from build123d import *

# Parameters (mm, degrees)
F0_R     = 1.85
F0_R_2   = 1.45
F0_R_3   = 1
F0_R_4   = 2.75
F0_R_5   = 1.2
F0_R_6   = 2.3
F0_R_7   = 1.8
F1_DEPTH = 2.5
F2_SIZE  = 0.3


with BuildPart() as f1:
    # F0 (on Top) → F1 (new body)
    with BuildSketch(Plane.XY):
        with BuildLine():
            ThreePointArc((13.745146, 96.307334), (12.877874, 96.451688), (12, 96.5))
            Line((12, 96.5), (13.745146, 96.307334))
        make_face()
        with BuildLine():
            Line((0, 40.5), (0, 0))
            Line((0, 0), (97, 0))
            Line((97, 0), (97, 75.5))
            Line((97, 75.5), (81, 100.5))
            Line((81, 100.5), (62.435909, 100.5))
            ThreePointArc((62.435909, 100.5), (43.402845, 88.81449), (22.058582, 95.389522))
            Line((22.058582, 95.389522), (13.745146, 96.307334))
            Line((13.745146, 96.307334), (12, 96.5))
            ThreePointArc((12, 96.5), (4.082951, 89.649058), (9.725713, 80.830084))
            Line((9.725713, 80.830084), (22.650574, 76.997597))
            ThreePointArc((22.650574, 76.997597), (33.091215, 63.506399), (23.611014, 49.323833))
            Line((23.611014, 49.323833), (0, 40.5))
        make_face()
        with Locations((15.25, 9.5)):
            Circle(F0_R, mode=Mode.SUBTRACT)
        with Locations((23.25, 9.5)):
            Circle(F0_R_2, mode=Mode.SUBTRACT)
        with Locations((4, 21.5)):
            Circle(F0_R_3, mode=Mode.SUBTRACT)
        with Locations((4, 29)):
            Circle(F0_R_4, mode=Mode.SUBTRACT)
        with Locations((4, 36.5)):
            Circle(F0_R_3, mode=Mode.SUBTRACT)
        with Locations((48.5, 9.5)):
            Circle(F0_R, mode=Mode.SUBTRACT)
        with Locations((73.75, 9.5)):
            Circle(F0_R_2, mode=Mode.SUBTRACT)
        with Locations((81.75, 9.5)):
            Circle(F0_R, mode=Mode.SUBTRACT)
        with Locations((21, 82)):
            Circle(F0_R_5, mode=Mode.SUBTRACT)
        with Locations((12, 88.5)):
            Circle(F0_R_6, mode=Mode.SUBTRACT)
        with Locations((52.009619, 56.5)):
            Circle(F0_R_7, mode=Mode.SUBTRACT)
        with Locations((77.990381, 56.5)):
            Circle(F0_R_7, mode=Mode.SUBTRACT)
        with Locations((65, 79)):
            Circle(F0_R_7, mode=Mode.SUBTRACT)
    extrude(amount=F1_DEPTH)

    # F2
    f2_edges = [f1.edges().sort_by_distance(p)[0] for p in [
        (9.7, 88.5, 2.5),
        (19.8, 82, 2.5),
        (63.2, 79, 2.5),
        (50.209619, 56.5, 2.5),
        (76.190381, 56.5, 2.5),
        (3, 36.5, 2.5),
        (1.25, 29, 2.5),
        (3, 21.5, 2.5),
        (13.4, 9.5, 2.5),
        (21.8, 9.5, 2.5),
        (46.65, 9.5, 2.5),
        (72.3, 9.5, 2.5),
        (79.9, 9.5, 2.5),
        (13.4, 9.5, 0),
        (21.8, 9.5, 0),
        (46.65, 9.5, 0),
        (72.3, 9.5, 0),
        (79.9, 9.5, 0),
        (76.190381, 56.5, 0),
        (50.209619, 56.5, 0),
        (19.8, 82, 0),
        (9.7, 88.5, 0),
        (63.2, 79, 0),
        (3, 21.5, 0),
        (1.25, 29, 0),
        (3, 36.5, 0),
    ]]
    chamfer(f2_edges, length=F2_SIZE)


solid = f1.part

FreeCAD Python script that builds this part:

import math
import FreeCAD as App
import Part
import Sketcher

V = App.Vector
Q = App.Units.Quantity


def edges_at(feature, points):
    """Names of the edges that pass closest to the given points."""
    edges = feature.Shape.Edges
    near = lambda p: min(range(len(edges)), key=lambda i: edges[i].distToShape(Part.Vertex(*p))[0])
    return sorted({f"Edge{near(p) + 1}" for p in points})

doc = App.newDocument("Part")
body = doc.addObject("PartDesign::Body", "Body")

sketch1 = doc.addObject("Sketcher::SketchObject", "Sketch")
body.addObject(sketch1)
sketch1.AttachmentSupport = (doc.XY_Plane, [""])
sketch1.MapMode = "FlatFace"
sketch1.addGeometry(Part.ArcOfCircle(Part.Circle(V(12, 88.5, 0), V(0, 0, 1), 8), math.radians(77.4), math.radians(90)), False)
sketch1.addGeometry(Part.ArcOfCircle(Part.Circle(V(12, 88.5, 0), V(0, 0, 1), 8), math.radians(90), math.radians(253)), False)
sketch1.addGeometry(Part.LineSegment(V(9.7, 80.8, 0), V(22.7, 77, 0)), False)
sketch1.addGeometry(Part.ArcOfCircle(Part.Circle(V(18.5, 63, 0), V(0, 0, 1), 14.6), math.radians(-70), math.radians(73)), False)
sketch1.addGeometry(Part.LineSegment(V(23.6, 49.3, 0), V(0, 40.5, 0)), False)
sketch1.addGeometry(Part.LineSegment(V(0, 40.5, 0), V(0, 0, 0)), False)
sketch1.addGeometry(Part.LineSegment(V(0, 0, 0), V(97, 0, 0)), False)
sketch1.addGeometry(Part.LineSegment(V(97, 0, 0), V(97, 75.5, 0)), False)
sketch1.addGeometry(Part.LineSegment(V(97, 75.5, 0), V(81, 100.5, 0)), False)
sketch1.addGeometry(Part.LineSegment(V(81, 100.5, 0), V(62.4, 100.5, 0)), False)
sketch1.addGeometry(Part.ArcOfCircle(Part.Circle(V(40, 115.7, 0), V(0, 0, 1), 27.1), math.radians(-131), math.radians(-34)), False)
sketch1.addGeometry(Part.LineSegment(V(22.1, 95.4, 0), V(13.7, 96.3, 0)), False)
sketch1.addGeometry(Part.Circle(V(15.2, 9.5, 0), V(0, 0, 1), 1.9), False)
sketch1.addGeometry(Part.Circle(V(4, 21.5, 0), V(0, 0, 1), 1), False)
sketch1.addGeometry(Part.Circle(V(23.2, 9.5, 0), V(0, 0, 1), 1.4), False)
sketch1.addGeometry(Part.Circle(V(4, 29, 0), V(0, 0, 1), 2.8), False)
sketch1.addGeometry(Part.Circle(V(4, 36.5, 0), V(0, 0, 1), 1), False)
sketch1.addGeometry(Part.Circle(V(48.5, 9.5, 0), V(0, 0, 1), 1.9), False)
sketch1.addGeometry(Part.Circle(V(73.8, 9.5, 0), V(0, 0, 1), 1.4), False)
sketch1.addGeometry(Part.Circle(V(81.8, 9.5, 0), V(0, 0, 1), 1.9), False)
sketch1.addGeometry(Part.Circle(V(21, 82, 0), V(0, 0, 1), 1.2), False)
sketch1.addGeometry(Part.Circle(V(12, 88.5, 0), V(0, 0, 1), 2.3), False)
sketch1.addGeometry(Part.Circle(V(52, 56.5, 0), V(0, 0, 1), 1.8), False)
sketch1.addGeometry(Part.Circle(V(78, 56.5, 0), V(0, 0, 1), 1.8), False)
sketch1.addGeometry(Part.Circle(V(65, 79, 0), V(0, 0, 1), 1.8), False)
sketch1.addConstraint(Sketcher.Constraint("Tangent", 0, 2, 1, 1))
sketch1.addConstraint(Sketcher.Constraint("Tangent", 1, 2, 2, 1))
sketch1.addConstraint(Sketcher.Constraint("Tangent", 2, 2, 3, 2))
sketch1.addConstraint(Sketcher.Constraint("Tangent", 3, 1, 4, 1))
sketch1.addConstraint(Sketcher.Constraint("Coincident", 4, 2, 5, 1))
sketch1.addConstraint(Sketcher.Constraint("Coincident", 5, 2, 6, 1))
sketch1.addConstraint(Sketcher.Constraint("Coincident", 6, 2, 7, 1))
sketch1.addConstraint(Sketcher.Constraint("Coincident", 7, 2, 8, 1))
sketch1.addConstraint(Sketcher.Constraint("Coincident", 8, 2, 9, 1))
sketch1.addConstraint(Sketcher.Constraint("Coincident", 9, 2, 10, 2))
sketch1.addConstraint(Sketcher.Constraint("Coincident", 10, 1, 11, 1))
sketch1.addConstraint(Sketcher.Constraint("Coincident", 11, 2, 0, 1))
sketch1.addConstraint(Sketcher.Constraint("Vertical", 5))
sketch1.addConstraint(Sketcher.Constraint("Horizontal", 6))
sketch1.addConstraint(Sketcher.Constraint("Vertical", 7))
sketch1.addConstraint(Sketcher.Constraint("Horizontal", 9))
sketch1.addConstraint(Sketcher.Constraint("Coincident", 5, 2, -1, 1))
sketch1.addConstraint(Sketcher.Constraint("Coincident", 21, 3, 1, 3))
sketch1.addConstraint(Sketcher.Constraint("Equal", 13, 16))
sketch1.addConstraint(Sketcher.Constraint("Equal", 12, 17))
sketch1.addConstraint(Sketcher.Constraint("Equal", 14, 18))
sketch1.addConstraint(Sketcher.Constraint("Equal", 17, 19))
sketch1.addConstraint(Sketcher.Constraint("Equal", 22, 23))
sketch1.addConstraint(Sketcher.Constraint("Equal", 23, 24))
sketch1.addConstraint(Sketcher.Constraint("Horizontal", 12, 3, 14, 3))
sketch1.addConstraint(Sketcher.Constraint("Horizontal", 14, 3, 17, 3))
sketch1.addConstraint(Sketcher.Constraint("Horizontal", 17, 3, 18, 3))
sketch1.addConstraint(Sketcher.Constraint("Horizontal", 18, 3, 19, 3))
sketch1.addConstraint(Sketcher.Constraint("Horizontal", 22, 3, 23, 3))
sketch1.addConstraint(Sketcher.Constraint("Vertical", 13, 3, 15, 3))
sketch1.addConstraint(Sketcher.Constraint("Vertical", 15, 3, 16, 3))
sketch1.addConstraint(Sketcher.Constraint("Vertical", 21, 3, 0, 2))
sketch1.addConstraint(Sketcher.Constraint("Diameter", 13, Q("2 mm")))
sketch1.addConstraint(Sketcher.Constraint("Radius", 1, Q("8 mm")))
sketch1.addConstraint(Sketcher.Constraint("Diameter", 12, Q("3.7 mm")))
sketch1.addConstraint(Sketcher.Constraint("Diameter", 14, Q("2.9 mm")))
sketch1.addConstraint(Sketcher.Constraint("Diameter", 15, Q("5.5 mm")))
sketch1.addConstraint(Sketcher.Constraint("Diameter", 20, Q("2.4 mm")))
sketch1.addConstraint(Sketcher.Constraint("Diameter", 21, Q("4.6 mm")))
sketch1.addConstraint(Sketcher.Constraint("Diameter", 22, Q("3.6 mm")))
sketch1.addConstraint(Sketcher.Constraint("Radius", 3, Q("14.6 mm")))
sketch1.addConstraint(Sketcher.Constraint("Radius", 10, Q("27.1 mm")))
sketch1.addConstraint(Sketcher.Constraint("DistanceX", 6, 1, 6, 2, Q("97 mm")))
sketch1.addConstraint(Sketcher.Constraint("DistanceY", 5, 2, 5, 1, Q("40.5 mm")))
sketch1.addConstraint(Sketcher.Constraint("DistanceY", 7, 1, 7, 2, Q("75.5 mm")))
sketch1.addConstraint(Sketcher.Constraint("DistanceX", -1, 1, 1, 3, Q("12 mm")))
sketch1.addConstraint(Sketcher.Constraint("DistanceY", -1, 1, 3, 3, Q("63 mm")))
sketch1.addConstraint(Sketcher.Constraint("DistanceX", -1, 1, 10, 3, Q("40 mm")))
sketch1.addConstraint(Sketcher.Constraint("DistanceX", -1, 1, 13, 3, Q("4 mm")))
sketch1.addConstraint(Sketcher.Constraint("DistanceY", -1, 1, 15, 3, Q("29 mm")))
sketch1.addConstraint(Sketcher.Constraint("DistanceX", -1, 1, 20, 3, Q("21 mm")))
sketch1.addConstraint(Sketcher.Constraint("DistanceY", -1, 1, 20, 3, Q("82 mm")))
sketch1.addConstraint(Sketcher.Constraint("DistanceX", -1, 1, 24, 3, Q("65 mm")))
sketch1.addConstraint(Sketcher.Constraint("DistanceY", -1, 1, 24, 3, Q("79 mm")))
sketch1.addConstraint(Sketcher.Constraint("DistanceX", -1, 1, 8, 2, Q("81 mm")))
sketch1.addConstraint(Sketcher.Constraint("Angle", 11, Q("173.699999 deg")))
sketch1.addConstraint(Sketcher.Constraint("DistanceY", 12, 3, 1, 3, Q("79 mm")))
sketch1.addConstraint(Sketcher.Constraint("DistanceY", 12, 3, 13, 3, Q("12 mm")))
sketch1.addConstraint(Sketcher.Constraint("DistanceX", 12, 3, 14, 3, Q("8 mm")))
sketch1.addConstraint(Sketcher.Constraint("DistanceY", 13, 3, 16, 3, Q("15 mm")))
sketch1.addConstraint(Sketcher.Constraint("DistanceX", 18, 3, 19, 3, Q("8 mm")))
sketch1.addConstraint(Sketcher.Constraint("DistanceY", 17, 3, 22, 3, Q("47 mm")))
sketch1.addConstraint(Sketcher.Constraint("DistanceY", 16, 3, 4, 2, Q("4 mm")))
sketch1.addConstraint(Sketcher.Constraint("DistanceY", 7, 2, 8, 2, Q("25 mm")))
sketch1.addConstraint(Sketcher.Constraint("DistanceX", -1, 1, 3, 3, Q("18.5 mm")))
sketch1.addConstraint(Sketcher.Constraint("DistanceY", -1, 1, 10, 3, Q("115.7 mm")))
sketch1.addConstraint(Sketcher.Constraint("DistanceX", -1, 1, 17, 3, Q("48.5 mm")))
sketch1.addConstraint(Sketcher.Constraint("DistanceX", 14, 3, 18, 3, Q("50.5 mm")))
sketch1.addConstraint(Sketcher.Constraint("DistanceX", -1, 1, 12, 3, Q("15.25 mm")))
sketch1.addConstraint(Sketcher.Constraint("Radius", 0, Q("7.999944 mm")))
sketch1.addConstraint(Sketcher.Constraint("DistanceX", -1, 1, 22, 3, Q("52.009619 mm")))
sketch1.addConstraint(Sketcher.Constraint("DistanceX", -1, 1, 23, 3, Q("77.990381 mm")))
sketch1.addConstraint(Sketcher.Constraint("DistanceY", 1, 3, 10, 1, Q("6.889522 mm")))
pad1 = doc.addObject("PartDesign::Pad", "Pad")
body.addObject(pad1)
pad1.Profile = sketch1
pad1.Length = 2.5
doc.recompute()

chamfer = doc.addObject("PartDesign::Chamfer", "Chamfer")
body.addObject(chamfer)
chamfer.Base = (pad1, edges_at(pad1, [
    (9.7, 88.5, 2.5),
    (19.8, 82, 2.5),
    (63.2, 79, 2.5),
    (50.21, 56.5, 2.5),
    (76.19, 56.5, 2.5),
    (3, 36.5, 2.5),
    (1.25, 29, 2.5),
    (3, 21.5, 2.5),
    (13.4, 9.5, 2.5),
    (21.8, 9.5, 2.5),
    (46.65, 9.5, 2.5),
    (72.3, 9.5, 2.5),
    (79.9, 9.5, 2.5),
    (13.4, 9.5, 0),
    (21.8, 9.5, 0),
    (46.65, 9.5, 0),
    (72.3, 9.5, 0),
    (79.9, 9.5, 0),
    (76.19, 56.5, 0),
    (50.21, 56.5, 0),
    (19.8, 82, 0),
    (9.7, 88.5, 0),
    (63.2, 79, 0),
    (3, 21.5, 0),
    (1.25, 29, 0),
    (3, 36.5, 0),
]))
chamfer.Size = 0.3

doc.recompute()
